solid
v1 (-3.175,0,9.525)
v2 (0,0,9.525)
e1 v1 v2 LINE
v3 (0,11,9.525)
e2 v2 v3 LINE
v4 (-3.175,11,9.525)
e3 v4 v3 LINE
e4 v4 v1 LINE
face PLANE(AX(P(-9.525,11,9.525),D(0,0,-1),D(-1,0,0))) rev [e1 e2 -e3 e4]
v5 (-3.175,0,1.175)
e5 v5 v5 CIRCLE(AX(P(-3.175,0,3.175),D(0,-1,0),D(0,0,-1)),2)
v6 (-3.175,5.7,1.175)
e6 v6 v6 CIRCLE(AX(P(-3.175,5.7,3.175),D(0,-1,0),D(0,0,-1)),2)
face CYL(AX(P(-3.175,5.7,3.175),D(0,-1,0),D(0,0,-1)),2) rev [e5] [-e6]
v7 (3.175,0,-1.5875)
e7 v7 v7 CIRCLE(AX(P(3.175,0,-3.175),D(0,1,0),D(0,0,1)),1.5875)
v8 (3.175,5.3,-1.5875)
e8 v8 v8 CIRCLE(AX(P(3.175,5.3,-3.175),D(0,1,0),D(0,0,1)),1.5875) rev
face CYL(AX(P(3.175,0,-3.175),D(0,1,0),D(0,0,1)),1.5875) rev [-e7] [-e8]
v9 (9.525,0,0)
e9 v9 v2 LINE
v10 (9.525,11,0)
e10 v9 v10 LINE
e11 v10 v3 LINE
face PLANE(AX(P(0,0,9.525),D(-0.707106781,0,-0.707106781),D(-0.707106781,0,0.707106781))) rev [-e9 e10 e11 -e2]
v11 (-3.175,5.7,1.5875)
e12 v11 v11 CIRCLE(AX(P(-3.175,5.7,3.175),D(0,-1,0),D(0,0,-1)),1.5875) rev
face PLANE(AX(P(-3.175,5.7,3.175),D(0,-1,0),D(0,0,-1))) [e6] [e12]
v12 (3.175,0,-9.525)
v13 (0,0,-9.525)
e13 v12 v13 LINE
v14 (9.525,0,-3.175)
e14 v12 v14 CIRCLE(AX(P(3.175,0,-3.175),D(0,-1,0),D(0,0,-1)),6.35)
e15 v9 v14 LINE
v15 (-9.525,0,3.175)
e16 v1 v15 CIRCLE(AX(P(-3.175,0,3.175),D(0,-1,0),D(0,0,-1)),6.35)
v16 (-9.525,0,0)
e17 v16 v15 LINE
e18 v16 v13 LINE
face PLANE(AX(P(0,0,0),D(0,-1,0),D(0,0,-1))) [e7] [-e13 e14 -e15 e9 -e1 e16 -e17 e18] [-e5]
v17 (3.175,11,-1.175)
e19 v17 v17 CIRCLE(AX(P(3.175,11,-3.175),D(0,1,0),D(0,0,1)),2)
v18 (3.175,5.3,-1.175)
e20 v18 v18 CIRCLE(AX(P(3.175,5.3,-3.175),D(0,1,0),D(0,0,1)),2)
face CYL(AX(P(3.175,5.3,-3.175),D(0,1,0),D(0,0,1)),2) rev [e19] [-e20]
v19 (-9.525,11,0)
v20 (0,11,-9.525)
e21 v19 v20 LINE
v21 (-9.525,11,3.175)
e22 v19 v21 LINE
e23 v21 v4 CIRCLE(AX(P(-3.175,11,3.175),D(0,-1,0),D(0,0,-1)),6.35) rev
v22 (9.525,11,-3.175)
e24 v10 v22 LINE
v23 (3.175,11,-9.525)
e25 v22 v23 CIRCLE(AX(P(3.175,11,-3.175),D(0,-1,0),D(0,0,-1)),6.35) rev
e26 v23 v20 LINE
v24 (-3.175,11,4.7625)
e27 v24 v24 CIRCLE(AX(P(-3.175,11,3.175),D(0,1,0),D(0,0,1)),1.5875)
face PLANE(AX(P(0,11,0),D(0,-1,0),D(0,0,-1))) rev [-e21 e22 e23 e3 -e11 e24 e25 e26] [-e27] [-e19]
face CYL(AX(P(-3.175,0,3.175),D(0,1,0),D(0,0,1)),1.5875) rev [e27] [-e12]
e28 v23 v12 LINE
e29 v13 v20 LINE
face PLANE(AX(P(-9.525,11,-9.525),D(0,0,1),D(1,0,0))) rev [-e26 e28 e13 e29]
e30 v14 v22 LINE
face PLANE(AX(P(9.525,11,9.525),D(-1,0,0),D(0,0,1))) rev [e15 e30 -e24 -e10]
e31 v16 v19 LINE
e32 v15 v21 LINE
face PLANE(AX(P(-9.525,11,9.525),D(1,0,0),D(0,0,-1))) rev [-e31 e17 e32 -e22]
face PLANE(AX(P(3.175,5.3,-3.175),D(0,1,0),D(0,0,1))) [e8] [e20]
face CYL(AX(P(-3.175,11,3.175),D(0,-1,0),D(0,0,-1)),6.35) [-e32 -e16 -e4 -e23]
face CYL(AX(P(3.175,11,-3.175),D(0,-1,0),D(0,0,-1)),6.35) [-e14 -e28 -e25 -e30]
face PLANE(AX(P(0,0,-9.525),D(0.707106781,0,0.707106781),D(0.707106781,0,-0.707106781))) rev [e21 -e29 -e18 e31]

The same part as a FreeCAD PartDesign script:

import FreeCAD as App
import Part
import Sketcher
from FreeCAD import Vector
Q = App.Units.Quantity


def edges_at(feature, points):
    """Names of the edges that pass closest to the given points."""
    edges = feature.Shape.Edges
    near = lambda p: min(range(len(edges)), key=lambda i: edges[i].distToShape(Part.Vertex(*p))[0])
    return sorted({f"Edge{near(p) + 1}" for p in points})

doc = App.newDocument("Part")
body = doc.addObject("PartDesign::Body", "Body")

sketch1 = doc.addObject("Sketcher::SketchObject", "Sketch")
body.addObject(sketch1)
sketch1.AttachmentSupport = (doc.XZ_Plane, [""])
sketch1.MapMode = "FlatFace"
sketch1.addGeometry([
    Part.LineSegment(Vector(-10, -10, 0), Vector(-10, 10, 0)),
    Part.LineSegment(Vector(-10, 10, 0), Vector(10, 10, 0)),
    Part.LineSegment(Vector(10, 10, 0), Vector(10, -10, 0)),
    Part.LineSegment(Vector(10, -10, 0), Vector(-10, -10, 0)),
], False)
sketch1.addConstraint([
    Sketcher.Constraint("Coincident", 0, 2, 1, 1),
    Sketcher.Constraint("Coincident", 1, 2, 2, 1),
    Sketcher.Constraint("Coincident", 2, 2, 3, 1),
    Sketcher.Constraint("Coincident", 3, 2, 0, 1),
    Sketcher.Constraint("Vertical", 0),
    Sketcher.Constraint("Horizontal", 1),
    Sketcher.Constraint("Vertical", 2),
    Sketcher.Constraint("Horizontal", 3),
    Sketcher.Constraint("Symmetric", 0, 2, 2, 2, -1, 1),
    Sketcher.Constraint("Equal", 3, 0),
    Sketcher.Constraint("DistanceX", 1, 1, 1, 2, Q("0.75 in")),
])
pad1 = doc.addObject("PartDesign::Pad", "Pad")
body.addObject(pad1)
pad1.Profile = sketch1
pad1.Length = 11
pad1.Reversed = True

sketch2 = doc.addObject("Sketcher::SketchObject", "Sketch001")
body.addObject(sketch2)
sketch2.AttachmentSupport = (doc.XZ_Plane, [""])
sketch2.MapMode = "FlatFace"
sketch2.AttachmentOffset = App.Placement(Vector(0, 0, -11), App.Rotation())
sketch2.addGeometry([
    Part.Circle(Vector(-3.2, 3.2, 0), Vector(0, 0, 1), 1.6),
    Part.Circle(Vector(3.2, -3.2, 0), Vector(0, 0, 1), 1.6),
], False)
sketch2.addConstraint([
    Sketcher.Constraint("Equal", 0, 1),
    Sketcher.Constraint("Symmetric", 0, 3, 1, 3, -1, 1),
    Sketcher.Constraint("Diameter", 0, Q("0.125 in")),
    Sketcher.Constraint("DistanceX", 0, 3, 1, 3, Q("0.25 in")),
    Sketcher.Constraint("DistanceY", 1, 3, 0, 3, Q("0.25 in")),
])
pocket1 = doc.addObject("PartDesign::Pocket", "Pocket")
body.addObject(pocket1)
pocket1.Profile = sketch2
pocket1.Type = "ThroughAll"
pocket1.Reversed = True

sketch3 = doc.addObject("Sketcher::SketchObject", "Sketch002")
body.addObject(sketch3)
sketch3.AttachmentSupport = (doc.XZ_Plane, [""])
sketch3.MapMode = "FlatFace"
sketch3.AttachmentOffset = App.Placement(Vector(0, 0, -11), App.Rotation())
sketch3.addGeometry(Part.Circle(Vector(3.2, -3.2, 0), Vector(0, 0, 1), 2), False)
sketch3.addConstraint([
    Sketcher.Constraint("Diameter", 0, Q("4 mm")),
    Sketcher.Constraint("DistanceX", -1, 1, 0, 3, Q("0.125 in")),
    Sketcher.Constraint("DistanceY", 0, 3, -1, 1, Q("0.125 in")),
])
pocket2 = doc.addObject("PartDesign::Pocket", "Pocket001")
body.addObject(pocket2)
pocket2.Profile = sketch3
pocket2.Length = 5.7
pocket2.Reversed = True

sketch4 = doc.addObject("Sketcher::SketchObject", "Sketch003")
body.addObject(sketch4)
sketch4.AttachmentSupport = (doc.XZ_Plane, [""])
sketch4.MapMode = "FlatFace"
sketch4.addGeometry(Part.Circle(Vector(-3.2, 3.2, 0), Vector(0, 0, 1), 2), False)
sketch4.addConstraint([
    Sketcher.Constraint("Diameter", 0, Q("4 mm")),
    Sketcher.Constraint("DistanceX", 0, 3, -1, 1, Q("0.125 in")),
    Sketcher.Constraint("DistanceY", -1, 1, 0, 3, Q("0.125 in")),
])
pocket3 = doc.addObject("PartDesign::Pocket", "Pocket002")
body.addObject(pocket3)
pocket3.Profile = sketch4
pocket3.Length = 5.7

sketch5 = doc.addObject("Sketcher::SketchObject", "Sketch004")
body.addObject(sketch5)
sketch5.AttachmentSupport = (doc.XZ_Plane, [""])
sketch5.MapMode = "FlatFace"
sketch5.AttachmentOffset = App.Placement(Vector(0, 0, -11), App.Rotation())
sketch5.addGeometry([
    Part.LineSegment(Vector(0, -10, 0), Vector(-10, -10, 0)),
    Part.LineSegment(Vector(-10, -10, 0), Vector(-10, 0, 0)),
    Part.LineSegment(Vector(-10, 0, 0), Vector(0, -10, 0)),
    Part.LineSegment(Vector(10, 0, 0), Vector(0, 10, 0)),
    Part.LineSegment(Vector(0, 10, 0), Vector(10, 10, 0)),
    Part.LineSegment(Vector(10, 10, 0), Vector(10, 0, 0)),
], False)
sketch5.addConstraint([
    Sketcher.Constraint("Coincident", 0, 2, 1, 1),
    Sketcher.Constraint("Coincident", 1, 2, 2, 1),
    Sketcher.Constraint("Coincident", 2, 2, 0, 1),
    Sketcher.Constraint("Coincident", 3, 2, 4, 1),
    Sketcher.Constraint("Coincident", 4, 2, 5, 1),
    Sketcher.Constraint("Coincident", 5, 2, 3, 1),
    Sketcher.Constraint("Horizontal", 0),
    Sketcher.Constraint("Vertical", 1),
    Sketcher.Constraint("Horizontal", 4),
    Sketcher.Constraint("Vertical", 5),
    Sketcher.Constraint("Symmetric", 2, 2, 3, 2, -1, 1),
    Sketcher.Constraint("Symmetric", 1, 2, 5, 2, -1, 1),
    Sketcher.Constraint("PointOnObject", 1, 2, -1),
    Sketcher.Constraint("PointOnObject", 2, 2, -2),
    Sketcher.Constraint("Equal", 4, 1),
    Sketcher.Constraint("DistanceX", 0, 2, 0, 1, Q("0.375 in")),
])
pocket4 = doc.addObject("PartDesign::Pocket", "Pocket003")
body.addObject(pocket4)
pocket4.Profile = sketch5
pocket4.Type = "ThroughAll"
pocket4.Reversed = True
doc.recompute()

fillet = doc.addObject("PartDesign::Fillet", "Fillet")
body.addObject(fillet)
fillet.Base = (pocket4, edges_at(pocket4, [(-9.525, 5.5, 9.525), (9.525, 5.5, -9.525)]))
fillet.Radius = Q("0.25 in")

doc.recompute()
